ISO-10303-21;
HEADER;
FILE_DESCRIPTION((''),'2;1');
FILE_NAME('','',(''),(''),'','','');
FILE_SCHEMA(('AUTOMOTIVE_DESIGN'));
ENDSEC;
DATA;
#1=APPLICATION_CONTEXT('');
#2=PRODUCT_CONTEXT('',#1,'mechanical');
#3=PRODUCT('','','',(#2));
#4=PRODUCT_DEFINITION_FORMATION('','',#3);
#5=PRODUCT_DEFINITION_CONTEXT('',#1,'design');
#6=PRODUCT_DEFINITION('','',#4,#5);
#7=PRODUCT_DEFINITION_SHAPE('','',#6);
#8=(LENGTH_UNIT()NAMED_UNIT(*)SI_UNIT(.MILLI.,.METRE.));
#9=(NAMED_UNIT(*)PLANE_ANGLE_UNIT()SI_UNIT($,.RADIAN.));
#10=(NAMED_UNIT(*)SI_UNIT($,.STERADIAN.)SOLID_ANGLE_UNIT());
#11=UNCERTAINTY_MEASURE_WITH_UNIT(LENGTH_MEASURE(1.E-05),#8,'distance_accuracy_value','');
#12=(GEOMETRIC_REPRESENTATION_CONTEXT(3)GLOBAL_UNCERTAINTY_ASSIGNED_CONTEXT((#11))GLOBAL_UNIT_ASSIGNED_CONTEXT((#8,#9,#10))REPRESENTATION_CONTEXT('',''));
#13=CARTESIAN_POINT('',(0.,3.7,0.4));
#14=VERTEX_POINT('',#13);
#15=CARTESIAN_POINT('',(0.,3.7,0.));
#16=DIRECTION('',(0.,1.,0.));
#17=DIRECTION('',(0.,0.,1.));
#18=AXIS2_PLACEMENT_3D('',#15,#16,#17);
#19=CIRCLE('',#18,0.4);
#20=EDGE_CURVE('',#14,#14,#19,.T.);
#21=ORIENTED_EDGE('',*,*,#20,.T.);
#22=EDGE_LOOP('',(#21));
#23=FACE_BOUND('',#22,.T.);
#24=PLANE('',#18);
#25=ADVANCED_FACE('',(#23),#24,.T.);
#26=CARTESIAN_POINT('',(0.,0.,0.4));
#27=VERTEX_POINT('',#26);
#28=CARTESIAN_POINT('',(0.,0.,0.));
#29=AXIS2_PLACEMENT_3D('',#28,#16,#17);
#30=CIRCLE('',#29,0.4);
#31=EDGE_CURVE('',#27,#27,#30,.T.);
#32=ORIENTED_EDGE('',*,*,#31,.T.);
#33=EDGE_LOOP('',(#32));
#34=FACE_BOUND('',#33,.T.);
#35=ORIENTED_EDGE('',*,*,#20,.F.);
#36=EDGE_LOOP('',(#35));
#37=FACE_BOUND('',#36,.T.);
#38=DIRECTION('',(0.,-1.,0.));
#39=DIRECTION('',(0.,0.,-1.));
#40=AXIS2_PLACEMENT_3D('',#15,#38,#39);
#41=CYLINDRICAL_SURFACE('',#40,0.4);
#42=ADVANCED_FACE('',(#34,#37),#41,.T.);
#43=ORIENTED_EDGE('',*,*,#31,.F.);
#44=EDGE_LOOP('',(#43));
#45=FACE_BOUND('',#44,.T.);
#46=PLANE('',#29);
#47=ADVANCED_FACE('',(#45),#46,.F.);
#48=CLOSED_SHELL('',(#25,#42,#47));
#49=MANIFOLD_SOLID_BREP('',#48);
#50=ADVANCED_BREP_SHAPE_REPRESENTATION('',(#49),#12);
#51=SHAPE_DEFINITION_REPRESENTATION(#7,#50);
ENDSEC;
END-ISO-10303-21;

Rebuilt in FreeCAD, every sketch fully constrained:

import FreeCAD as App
import Part
import Sketcher

doc = App.newDocument("Part")
body = doc.addObject("PartDesign::Body", "Body")

sketch1 = doc.addObject("Sketcher::SketchObject", "Sketch")
body.addObject(sketch1)
sketch1.AttachmentSupport = (doc.XZ_Plane, [""])
sketch1.MapMode = "FlatFace"
sketch1.addGeometry(Part.Circle(App.Vector(0, 0, 0), App.Vector(0, 0, 1), 0.4), False)
sketch1.addConstraint([
    Sketcher.Constraint("Coincident", 0, 3, -1, 1),
    Sketcher.Constraint("Diameter", 0, 0.8),
])
pad1 = doc.addObject("PartDesign::Pad", "Pad")
body.addObject(pad1)
pad1.Profile = sketch1
pad1.Length = 3.7
pad1.Reversed = True

doc.recompute()
